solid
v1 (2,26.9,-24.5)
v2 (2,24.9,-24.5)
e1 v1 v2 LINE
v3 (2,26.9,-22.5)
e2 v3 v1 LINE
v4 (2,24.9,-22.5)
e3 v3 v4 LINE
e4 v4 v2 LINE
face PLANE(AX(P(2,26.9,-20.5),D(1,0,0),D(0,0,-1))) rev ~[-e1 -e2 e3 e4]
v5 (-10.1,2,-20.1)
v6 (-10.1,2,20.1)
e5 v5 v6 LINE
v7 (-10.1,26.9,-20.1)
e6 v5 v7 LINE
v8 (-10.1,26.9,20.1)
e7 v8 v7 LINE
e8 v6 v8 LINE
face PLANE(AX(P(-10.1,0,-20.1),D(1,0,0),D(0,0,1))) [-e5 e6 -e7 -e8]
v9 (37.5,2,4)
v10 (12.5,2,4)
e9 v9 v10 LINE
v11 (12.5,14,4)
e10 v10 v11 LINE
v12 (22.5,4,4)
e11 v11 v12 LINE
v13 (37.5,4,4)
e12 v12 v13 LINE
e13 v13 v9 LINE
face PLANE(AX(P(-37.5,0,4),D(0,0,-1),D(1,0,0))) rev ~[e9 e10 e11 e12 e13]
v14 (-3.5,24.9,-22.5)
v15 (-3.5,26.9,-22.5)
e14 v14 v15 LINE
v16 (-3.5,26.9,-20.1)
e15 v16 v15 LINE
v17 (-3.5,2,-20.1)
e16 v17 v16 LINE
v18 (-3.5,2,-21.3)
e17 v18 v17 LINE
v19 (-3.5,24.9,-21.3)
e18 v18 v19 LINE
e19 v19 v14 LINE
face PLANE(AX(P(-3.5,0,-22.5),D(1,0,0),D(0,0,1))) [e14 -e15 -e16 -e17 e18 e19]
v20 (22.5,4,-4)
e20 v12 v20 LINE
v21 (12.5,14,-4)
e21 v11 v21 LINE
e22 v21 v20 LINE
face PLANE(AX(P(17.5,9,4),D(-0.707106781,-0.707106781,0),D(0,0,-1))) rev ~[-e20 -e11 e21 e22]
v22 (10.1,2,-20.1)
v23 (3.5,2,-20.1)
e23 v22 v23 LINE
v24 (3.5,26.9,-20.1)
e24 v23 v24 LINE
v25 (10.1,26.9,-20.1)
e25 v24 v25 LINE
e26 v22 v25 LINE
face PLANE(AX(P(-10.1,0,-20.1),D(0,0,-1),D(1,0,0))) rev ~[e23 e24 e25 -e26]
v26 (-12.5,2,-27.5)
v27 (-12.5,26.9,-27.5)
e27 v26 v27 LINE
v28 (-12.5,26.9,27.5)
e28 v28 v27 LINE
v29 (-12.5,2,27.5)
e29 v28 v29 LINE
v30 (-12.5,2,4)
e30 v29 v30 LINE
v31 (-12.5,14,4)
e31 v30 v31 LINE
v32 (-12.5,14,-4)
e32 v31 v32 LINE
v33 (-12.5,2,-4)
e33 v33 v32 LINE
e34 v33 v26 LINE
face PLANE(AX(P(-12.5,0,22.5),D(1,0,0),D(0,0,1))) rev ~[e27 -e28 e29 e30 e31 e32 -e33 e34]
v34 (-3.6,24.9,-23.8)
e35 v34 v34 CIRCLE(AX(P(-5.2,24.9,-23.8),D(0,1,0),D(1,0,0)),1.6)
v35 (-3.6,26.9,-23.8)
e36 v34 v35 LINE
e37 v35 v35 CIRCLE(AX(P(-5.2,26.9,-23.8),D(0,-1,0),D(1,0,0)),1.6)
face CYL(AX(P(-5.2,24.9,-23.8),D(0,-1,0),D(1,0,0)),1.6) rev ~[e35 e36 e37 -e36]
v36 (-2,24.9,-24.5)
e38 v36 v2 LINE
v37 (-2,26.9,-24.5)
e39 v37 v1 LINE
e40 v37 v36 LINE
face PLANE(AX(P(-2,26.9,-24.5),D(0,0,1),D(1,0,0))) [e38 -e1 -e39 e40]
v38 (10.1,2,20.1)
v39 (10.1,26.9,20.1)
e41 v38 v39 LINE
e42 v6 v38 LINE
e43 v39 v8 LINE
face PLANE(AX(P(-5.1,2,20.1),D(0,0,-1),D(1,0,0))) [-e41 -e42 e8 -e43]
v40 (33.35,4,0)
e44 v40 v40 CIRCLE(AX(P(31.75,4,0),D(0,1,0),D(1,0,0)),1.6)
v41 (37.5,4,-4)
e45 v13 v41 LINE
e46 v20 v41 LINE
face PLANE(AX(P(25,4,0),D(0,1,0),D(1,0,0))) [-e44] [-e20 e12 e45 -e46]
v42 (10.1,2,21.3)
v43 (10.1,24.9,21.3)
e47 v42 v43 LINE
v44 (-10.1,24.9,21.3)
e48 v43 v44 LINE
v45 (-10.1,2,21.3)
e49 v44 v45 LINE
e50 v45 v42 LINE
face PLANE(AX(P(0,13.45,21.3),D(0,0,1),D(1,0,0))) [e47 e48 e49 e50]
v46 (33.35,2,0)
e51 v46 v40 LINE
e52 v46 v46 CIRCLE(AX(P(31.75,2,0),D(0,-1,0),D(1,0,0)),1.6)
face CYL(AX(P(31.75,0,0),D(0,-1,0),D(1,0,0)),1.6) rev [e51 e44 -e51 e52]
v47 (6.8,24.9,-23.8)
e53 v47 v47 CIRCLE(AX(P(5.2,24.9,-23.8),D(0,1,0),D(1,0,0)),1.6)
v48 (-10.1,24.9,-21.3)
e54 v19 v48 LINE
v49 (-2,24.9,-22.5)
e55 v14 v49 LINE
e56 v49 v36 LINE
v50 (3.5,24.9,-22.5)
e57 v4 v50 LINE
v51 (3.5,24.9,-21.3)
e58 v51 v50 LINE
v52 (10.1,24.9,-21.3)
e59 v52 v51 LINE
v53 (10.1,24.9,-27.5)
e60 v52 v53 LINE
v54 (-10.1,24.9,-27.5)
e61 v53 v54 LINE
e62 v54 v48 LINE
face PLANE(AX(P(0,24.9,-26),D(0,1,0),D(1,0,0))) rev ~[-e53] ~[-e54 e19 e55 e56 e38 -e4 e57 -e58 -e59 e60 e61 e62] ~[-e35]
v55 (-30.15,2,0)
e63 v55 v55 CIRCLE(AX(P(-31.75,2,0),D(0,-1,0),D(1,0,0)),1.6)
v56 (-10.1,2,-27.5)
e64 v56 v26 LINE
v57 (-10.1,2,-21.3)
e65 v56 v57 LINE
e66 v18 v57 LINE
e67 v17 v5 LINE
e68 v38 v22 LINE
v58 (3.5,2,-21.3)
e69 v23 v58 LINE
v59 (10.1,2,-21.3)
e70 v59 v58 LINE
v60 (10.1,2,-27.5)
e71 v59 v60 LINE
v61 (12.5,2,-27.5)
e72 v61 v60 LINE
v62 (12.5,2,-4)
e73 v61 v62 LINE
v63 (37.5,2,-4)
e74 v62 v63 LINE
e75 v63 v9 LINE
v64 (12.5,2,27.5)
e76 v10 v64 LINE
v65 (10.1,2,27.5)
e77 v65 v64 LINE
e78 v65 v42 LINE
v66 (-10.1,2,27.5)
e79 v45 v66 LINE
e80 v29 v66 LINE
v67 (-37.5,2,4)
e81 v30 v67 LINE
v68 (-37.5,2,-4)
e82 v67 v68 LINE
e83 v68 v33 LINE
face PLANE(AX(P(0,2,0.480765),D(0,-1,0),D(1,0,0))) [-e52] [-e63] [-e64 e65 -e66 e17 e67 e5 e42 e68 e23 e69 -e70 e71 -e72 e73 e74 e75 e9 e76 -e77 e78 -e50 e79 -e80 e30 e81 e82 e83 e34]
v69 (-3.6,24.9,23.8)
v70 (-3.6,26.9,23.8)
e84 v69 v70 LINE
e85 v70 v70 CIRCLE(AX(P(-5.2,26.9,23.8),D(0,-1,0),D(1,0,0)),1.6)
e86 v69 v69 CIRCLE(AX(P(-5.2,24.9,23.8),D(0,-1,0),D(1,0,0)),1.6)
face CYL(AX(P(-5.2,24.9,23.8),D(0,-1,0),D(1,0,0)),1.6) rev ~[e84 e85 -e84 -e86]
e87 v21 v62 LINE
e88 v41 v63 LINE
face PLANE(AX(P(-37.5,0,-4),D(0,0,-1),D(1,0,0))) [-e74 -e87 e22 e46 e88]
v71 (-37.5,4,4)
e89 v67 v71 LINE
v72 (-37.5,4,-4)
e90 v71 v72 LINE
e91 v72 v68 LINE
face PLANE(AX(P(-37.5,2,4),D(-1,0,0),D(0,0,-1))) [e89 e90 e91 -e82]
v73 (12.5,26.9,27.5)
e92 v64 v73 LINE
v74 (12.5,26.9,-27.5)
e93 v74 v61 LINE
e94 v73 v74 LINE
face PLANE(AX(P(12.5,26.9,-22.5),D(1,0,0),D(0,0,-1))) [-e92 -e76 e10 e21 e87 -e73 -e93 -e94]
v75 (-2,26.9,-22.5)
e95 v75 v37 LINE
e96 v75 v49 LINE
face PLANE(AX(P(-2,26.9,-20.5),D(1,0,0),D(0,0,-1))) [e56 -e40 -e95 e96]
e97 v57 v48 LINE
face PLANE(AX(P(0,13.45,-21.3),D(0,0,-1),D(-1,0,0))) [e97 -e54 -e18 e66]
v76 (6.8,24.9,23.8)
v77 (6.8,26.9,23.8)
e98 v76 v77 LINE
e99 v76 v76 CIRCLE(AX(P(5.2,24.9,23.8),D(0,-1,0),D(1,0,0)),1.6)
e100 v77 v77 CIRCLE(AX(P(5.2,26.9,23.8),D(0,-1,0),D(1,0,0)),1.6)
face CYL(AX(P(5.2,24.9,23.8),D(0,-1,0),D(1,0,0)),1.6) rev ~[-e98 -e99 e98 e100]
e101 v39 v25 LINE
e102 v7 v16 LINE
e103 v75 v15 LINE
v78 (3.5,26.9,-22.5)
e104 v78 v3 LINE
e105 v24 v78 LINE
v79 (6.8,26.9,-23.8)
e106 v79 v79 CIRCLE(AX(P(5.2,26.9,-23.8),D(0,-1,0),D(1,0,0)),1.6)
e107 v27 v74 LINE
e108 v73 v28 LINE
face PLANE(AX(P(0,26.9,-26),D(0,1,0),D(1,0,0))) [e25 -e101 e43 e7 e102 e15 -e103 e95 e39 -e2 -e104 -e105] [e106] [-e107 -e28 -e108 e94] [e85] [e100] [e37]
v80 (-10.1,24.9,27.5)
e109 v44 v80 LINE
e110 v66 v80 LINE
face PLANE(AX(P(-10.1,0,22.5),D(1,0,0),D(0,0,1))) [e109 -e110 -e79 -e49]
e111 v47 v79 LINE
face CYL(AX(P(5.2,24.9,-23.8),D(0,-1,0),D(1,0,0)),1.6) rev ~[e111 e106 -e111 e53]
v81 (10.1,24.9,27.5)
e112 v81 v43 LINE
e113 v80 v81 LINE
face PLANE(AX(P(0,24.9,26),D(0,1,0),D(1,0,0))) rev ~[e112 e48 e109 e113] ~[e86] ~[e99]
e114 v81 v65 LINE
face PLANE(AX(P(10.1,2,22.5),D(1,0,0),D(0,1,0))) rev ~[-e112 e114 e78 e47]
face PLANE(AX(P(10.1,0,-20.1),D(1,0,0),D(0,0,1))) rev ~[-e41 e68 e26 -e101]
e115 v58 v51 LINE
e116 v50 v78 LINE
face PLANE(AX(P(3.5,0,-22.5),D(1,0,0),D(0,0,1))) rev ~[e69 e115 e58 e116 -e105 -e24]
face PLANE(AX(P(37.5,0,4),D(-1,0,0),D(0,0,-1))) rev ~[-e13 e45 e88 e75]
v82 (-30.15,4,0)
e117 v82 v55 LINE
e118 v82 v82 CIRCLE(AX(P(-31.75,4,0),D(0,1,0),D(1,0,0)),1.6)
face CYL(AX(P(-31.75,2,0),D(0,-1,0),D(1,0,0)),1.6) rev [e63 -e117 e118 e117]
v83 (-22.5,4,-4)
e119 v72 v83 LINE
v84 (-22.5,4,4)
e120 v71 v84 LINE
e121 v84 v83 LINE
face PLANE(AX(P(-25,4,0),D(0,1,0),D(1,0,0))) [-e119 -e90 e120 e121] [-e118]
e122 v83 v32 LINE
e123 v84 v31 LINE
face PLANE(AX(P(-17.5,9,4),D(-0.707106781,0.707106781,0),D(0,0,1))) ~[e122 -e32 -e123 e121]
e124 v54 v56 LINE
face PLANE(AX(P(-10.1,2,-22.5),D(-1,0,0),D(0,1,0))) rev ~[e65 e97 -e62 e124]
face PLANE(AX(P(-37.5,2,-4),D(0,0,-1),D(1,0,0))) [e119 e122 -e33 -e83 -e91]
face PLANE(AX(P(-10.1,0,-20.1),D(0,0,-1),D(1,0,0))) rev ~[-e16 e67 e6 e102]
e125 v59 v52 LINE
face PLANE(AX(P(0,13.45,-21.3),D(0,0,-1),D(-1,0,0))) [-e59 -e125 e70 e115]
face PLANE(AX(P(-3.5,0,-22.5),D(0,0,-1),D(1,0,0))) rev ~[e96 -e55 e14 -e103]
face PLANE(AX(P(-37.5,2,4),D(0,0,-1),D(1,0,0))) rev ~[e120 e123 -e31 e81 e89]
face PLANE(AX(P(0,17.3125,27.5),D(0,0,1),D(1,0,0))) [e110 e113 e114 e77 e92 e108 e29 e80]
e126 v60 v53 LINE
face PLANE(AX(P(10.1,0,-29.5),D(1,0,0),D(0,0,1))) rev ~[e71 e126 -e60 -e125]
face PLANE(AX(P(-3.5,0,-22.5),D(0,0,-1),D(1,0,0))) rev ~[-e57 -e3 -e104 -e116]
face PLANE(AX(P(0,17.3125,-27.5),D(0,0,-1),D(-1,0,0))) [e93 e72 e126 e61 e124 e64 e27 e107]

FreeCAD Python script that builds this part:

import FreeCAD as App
import Part
import Sketcher

V = App.Vector


def edges_at(feature, points):
    """Names of the edges that pass closest to the given points."""
    edges = feature.Shape.Edges
    near = lambda p: min(range(len(edges)), key=lambda i: edges[i].distToShape(Part.Vertex(*p))[0])
    return sorted({f"Edge{near(p) + 1}" for p in points})

doc = App.newDocument("Part")
body = doc.addObject("PartDesign::Body", "Body")

sketch1 = body.newObject("Sketcher::SketchObject", "Sketch")
sketch1.AttachmentSupport = (doc.getObject("XZ_Plane"), [""])
sketch1.MapMode = "FlatFace"
sketch1.addGeometry([
    Part.LineSegment(V(-37.5, -4, 0), V(-37.5, 4, 0)),
    Part.LineSegment(V(-37.5, 4, 0), V(37.5, 4, 0)),
    Part.LineSegment(V(37.5, 4, 0), V(37.5, -4, 0)),
    Part.LineSegment(V(37.5, -4, 0), V(-37.5, -4, 0)),
    Part.Circle(V(-31.8, 0, 0), V(0, 0, 1), 1.6),
    Part.Circle(V(31.8, 0, 0), V(0, 0, 1), 1.6),
], False)
sketch1.addConstraint([
    Sketcher.Constraint("Coincident", 0, 2, 1, 1),
    Sketcher.Constraint("Coincident", 1, 2, 2, 1),
    Sketcher.Constraint("Coincident", 2, 2, 3, 1),
    Sketcher.Constraint("Coincident", 3, 2, 0, 1),
    Sketcher.Constraint("Vertical", 0),
    Sketcher.Constraint("Horizontal", 1),
    Sketcher.Constraint("Vertical", 2),
    Sketcher.Constraint("Horizontal", 3),
    Sketcher.Constraint("Equal", 4, 5),
    Sketcher.Constraint("Symmetric", 4, 3, 5, 3, -1, 1),
    Sketcher.Constraint("Symmetric", 0, 2, 2, 2, -1, 1),
    Sketcher.Constraint("PointOnObject", 4, 3, -1),
    Sketcher.Constraint("Diameter", 4, 3.2),
    Sketcher.Constraint("DistanceX", 1, 1, 1, 2, 75.0),
    Sketcher.Constraint("DistanceY", 0, 1, 0, 2, 8.0),
    Sketcher.Constraint("DistanceX", 4, 3, 5, 3, 63.5),
])
pad1 = body.newObject("PartDesign::Pad", "Pad")
pad1.Profile = sketch1
pad1.Length = 2
pad1.Reversed = True

sketch2 = body.newObject("Sketcher::SketchObject", "Sketch001")
sketch2.AttachmentSupport = (doc.getObject("XZ_Plane"), [""])
sketch2.MapMode = "FlatFace"
sketch2.AttachmentOffset = App.Placement(V(0, 0, -2), App.Rotation())
sketch2.addGeometry([
    Part.LineSegment(V(-12, 4, 0), V(-12, 22, 0)),
    Part.LineSegment(V(-12, 22, 0), V(12, 22, 0)),
    Part.LineSegment(V(12, 22, 0), V(12, 4, 0)),
    Part.LineSegment(V(12, 4, 0), V(-12, 4, 0)),
], False)
sketch2.addConstraint([
    Sketcher.Constraint("Coincident", 0, 2, 1, 1),
    Sketcher.Constraint("Coincident", 1, 2, 2, 1),
    Sketcher.Constraint("Coincident", 2, 2, 3, 1),
    Sketcher.Constraint("Coincident", 3, 2, 0, 1),
    Sketcher.Constraint("Vertical", 0),
    Sketcher.Constraint("Horizontal", 1),
    Sketcher.Constraint("Vertical", 2),
    Sketcher.Constraint("Horizontal", 3),
    Sketcher.Constraint("DistanceX", 1, 1, 1, 2, 25.0),
    Sketcher.Constraint("DistanceY", 0, 1, 0, 2, 18.5),
    Sketcher.Constraint("DistanceY", -1, 1, 2, 2, 4.0),
    Sketcher.Constraint("DistanceX", 0, 2, -1, 1, 12.5),
])
pad2 = body.newObject("PartDesign::Pad", "Pad001")
pad2.Profile = sketch2
pad2.Length = 2

sketch3 = body.newObject("Sketcher::SketchObject", "Sketch002")
sketch3.AttachmentSupport = (doc.getObject("XY_Plane"), [""])
sketch3.MapMode = "FlatFace"
sketch3.AttachmentOffset = App.Placement(V(0, 0, -4), App.Rotation())
sketch3.addGeometry([
    Part.LineSegment(V(12.5, 2, 0), V(12.5, 0, 0)),
    Part.LineSegment(V(12.5, 0, 0), V(-12.5, 0, 0)),
    Part.LineSegment(V(-12.5, 0, 0), V(-12.5, 2, 0)),
    Part.LineSegment(V(-12.5, 2, 0), V(12.5, 2, 0)),
], False)
sketch3.addConstraint([
    Sketcher.Constraint("Coincident", 0, 2, 1, 1),
    Sketcher.Constraint("Coincident", 1, 2, 2, 1),
    Sketcher.Constraint("Coincident", 2, 2, 3, 1),
    Sketcher.Constraint("Coincident", 3, 2, 0, 1),
    Sketcher.Constraint("Vertical", 0),
    Sketcher.Constraint("Horizontal", 1),
    Sketcher.Constraint("Vertical", 2),
    Sketcher.Constraint("Horizontal", 3),
    Sketcher.Constraint("Symmetric", 0, 2, 1, 2, -1, 1),
    Sketcher.Constraint("DistanceX", 1, 2, 1, 1, 25.0),
    Sketcher.Constraint("DistanceY", 0, 2, 0, 1, 2.0),
])
pad3 = body.newObject("PartDesign::Pad", "Pad002")
pad3.Profile = sketch3
pad3.Length = 18.5
pad3.Reversed = True

sketch4 = body.newObject("Sketcher::SketchObject", "Sketch003")
sketch4.AttachmentSupport = (doc.getObject("XZ_Plane"), [""])
sketch4.MapMode = "FlatFace"
sketch4.AttachmentOffset = App.Placement(V(0, 0, -2), App.Rotation())
sketch4.addGeometry([
    Part.LineSegment(V(-5, -20, 0), V(-5, 20, 0)),
    Part.LineSegment(V(-5, 20, 0), V(5, 20, 0)),
    Part.LineSegment(V(5, 20, 0), V(5, -20, 0)),
    Part.LineSegment(V(5, -20, 0), V(-5, -20, 0)),
], False)
sketch4.addConstraint([
    Sketcher.Constraint("Coincident", 0, 2, 1, 1),
    Sketcher.Constraint("Coincident", 1, 2, 2, 1),
    Sketcher.Constraint("Coincident", 2, 2, 3, 1),
    Sketcher.Constraint("Coincident", 3, 2, 0, 1),
    Sketcher.Constraint("Vertical", 0),
    Sketcher.Constraint("Horizontal", 1),
    Sketcher.Constraint("Vertical", 2),
    Sketcher.Constraint("Horizontal", 3),
    Sketcher.Constraint("Symmetric", 0, 2, 2, 2, -1, 1),
    Sketcher.Constraint("DistanceX", 1, 1, 1, 2, 10.2),
    Sketcher.Constraint("DistanceY", 0, 1, 0, 2, 40.2),
])
pocket1 = body.newObject("PartDesign::Pocket", "Pocket")
pocket1.Profile = sketch4
pocket1.Length = 18.5
pocket1.Reversed = True

sketch5 = body.newObject("Sketcher::SketchObject", "Sketch004")
sketch5.AttachmentSupport = (doc.getObject("XZ_Plane"), [""])
sketch5.MapMode = "FlatFace"
sketch5.AttachmentOffset = App.Placement(V(0, 0, -2), App.Rotation())
sketch5.addGeometry([
    Part.LineSegment(V(-12, 22, 0), V(12, 22, 0)),
    Part.LineSegment(V(12, 22, 0), V(12, -22, 0)),
    Part.LineSegment(V(12, -22, 0), V(-12, -22, 0)),
    Part.LineSegment(V(-12, -22, 0), V(-12, 22, 0)),
    Part.LineSegment(V(5, 20, 0), V(-5, 20, 0)),
    Part.LineSegment(V(-5, 20, 0), V(-5, -20, 0)),
    Part.LineSegment(V(-5, -20, 0), V(5, -20, 0)),
    Part.LineSegment(V(5, -20, 0), V(5, 20, 0)),
], False)
sketch5.addConstraint([
    Sketcher.Constraint("Coincident", 0, 2, 1, 1),
    Sketcher.Constraint("Coincident", 1, 2, 2, 1),
    Sketcher.Constraint("Coincident", 2, 2, 3, 1),
    Sketcher.Constraint("Coincident", 3, 2, 0, 1),
    Sketcher.Constraint("Coincident", 4, 2, 5, 1),
    Sketcher.Constraint("Coincident", 5, 2, 6, 1),
    Sketcher.Constraint("Coincident", 6, 2, 7, 1),
    Sketcher.Constraint("Coincident", 7, 2, 4, 1),
    Sketcher.Constraint("Horizontal", 0),
    Sketcher.Constraint("Vertical", 1),
    Sketcher.Constraint("Horizontal", 2),
    Sketcher.Constraint("Vertical", 3),
    Sketcher.Constraint("Horizontal", 4),
    Sketcher.Constraint("Vertical", 5),
    Sketcher.Constraint("Horizontal", 6),
    Sketcher.Constraint("Vertical", 7),
    Sketcher.Constraint("Symmetric", 0, 2, 2, 2, -1, 1),
    Sketcher.Constraint("Symmetric", 4, 2, 6, 2, -1, 1),
    Sketcher.Constraint("DistanceX", 0, 1, 0, 2, 25.0),
    Sketcher.Constraint("DistanceY", 1, 2, 1, 1, 45.0),
    Sketcher.Constraint("DistanceX", 4, 2, 4, 1, 10.2),
    Sketcher.Constraint("DistanceY", 5, 2, 5, 1, 40.2),
])
pad4 = body.newObject("PartDesign::Pad", "Pad003")
pad4.Profile = sketch5
pad4.Length = 24.9
pad4.Reversed = True

sketch6 = body.newObject("Sketcher::SketchObject", "Sketch005")
sketch6.AttachmentSupport = (doc.getObject("XZ_Plane"), [""])
sketch6.MapMode = "FlatFace"
sketch6.AttachmentOffset = App.Placement(V(0, 0, -26.9), App.Rotation())
sketch6.addGeometry([
    Part.LineSegment(V(-12, -30, 0), V(-12, -22, 0)),
    Part.LineSegment(V(-12, -22, 0), V(12, -22, 0)),
    Part.LineSegment(V(12, -22, 0), V(12, -30, 0)),
    Part.LineSegment(V(12, -30, 0), V(-12, -30, 0)),
    Part.LineSegment(V(-12, 22, 0), V(-12, 30, 0)),
    Part.LineSegment(V(-12, 30, 0), V(12, 30, 0)),
    Part.LineSegment(V(12, 30, 0), V(12, 22, 0)),
    Part.LineSegment(V(12, 22, 0), V(-12, 22, 0)),
], False)
sketch6.addConstraint([
    Sketcher.Constraint("Coincident", 0, 2, 1, 1),
    Sketcher.Constraint("Coincident", 1, 2, 2, 1),
    Sketcher.Constraint("Coincident", 2, 2, 3, 1),
    Sketcher.Constraint("Coincident", 3, 2, 0, 1),
    Sketcher.Constraint("Coincident", 4, 2, 5, 1),
    Sketcher.Constraint("Coincident", 5, 2, 6, 1),
    Sketcher.Constraint("Coincident", 6, 2, 7, 1),
    Sketcher.Constraint("Coincident", 7, 2, 4, 1),
    Sketcher.Constraint("Vertical", 0),
    Sketcher.Constraint("Horizontal", 1),
    Sketcher.Constraint("Vertical", 2),
    Sketcher.Constraint("Horizontal", 3),
    Sketcher.Constraint("Vertical", 4),
    Sketcher.Constraint("Horizontal", 5),
    Sketcher.Constraint("Vertical", 6),
    Sketcher.Constraint("Horizontal", 7),
    Sketcher.Constraint("Symmetric", 2, 2, 4, 2, -1, 1),
    Sketcher.Constraint("Symmetric", 0, 2, 6, 2, -1, 1),
    Sketcher.Constraint("Vertical", 3, 2, 4, 2),
    Sketcher.Constraint("DistanceX", 1, 1, 1, 2, 25.0),
    Sketcher.Constraint("DistanceY", 0, 1, 0, 2, 7.0),
    Sketcher.Constraint("DistanceY", 0, 2, 4, 2, 52.0),
])
pad5 = body.newObject("PartDesign::Pad", "Pad004")
pad5.Profile = sketch6
pad5.Length = 2

sketch7 = body.newObject("Sketcher::SketchObject", "Sketch006")
sketch7.AttachmentSupport = (doc.getObject("XZ_Plane"), [""])
sketch7.MapMode = "FlatFace"
sketch7.AttachmentOffset = App.Placement(V(0, 0, -24.9), App.Rotation())
sketch7.addGeometry([
    Part.Circle(V(5.2, 23.8, 0), V(0, 0, 1), 1.6),
    Part.Circle(V(-5.2, 23.8, 0), V(0, 0, 1), 1.6),
    Part.Circle(V(-5.2, -23.8, 0), V(0, 0, 1), 1.6),
    Part.Circle(V(5.2, -23.8, 0), V(0, 0, 1), 1.6),
], False)
sketch7.addConstraint([
    Sketcher.Constraint("Equal", 0, 1),
    Sketcher.Constraint("Equal", 1, 2),
    Sketcher.Constraint("Equal", 2, 3),
    Sketcher.Constraint("Symmetric", 0, 3, 2, 3, -1, 1),
    Sketcher.Constraint("Symmetric", 1, 3, 3, 3, -1, 1),
    Sketcher.Constraint("Symmetric", 0, 3, 1, 3, -2),
    Sketcher.Constraint("Diameter", 0, 3.2),
    Sketcher.Constraint("DistanceX", -1, 1, 0, 3, 5.2),
    Sketcher.Constraint("DistanceY", -1, 1, 0, 3, 23.8),
])
pocket2 = body.newObject("PartDesign::Pocket", "Pocket001")
pocket2.Profile = sketch7
pocket2.Length = 2

sketch8 = body.newObject("Sketcher::SketchObject", "Sketch007")
sketch8.AttachmentSupport = (doc.getObject("XZ_Plane"), [""])
sketch8.MapMode = "FlatFace"
sketch8.addGeometry([
    Part.LineSegment(V(-10, 20, 0), V(-10, -20, 0)),
    Part.LineSegment(V(-10, -20, 0), V(10, -20, 0)),
    Part.LineSegment(V(10, -20, 0), V(10, 20, 0)),
    Part.LineSegment(V(10, 20, 0), V(-10, 20, 0)),
], False)
sketch8.addConstraint([
    Sketcher.Constraint("Coincident", 0, 2, 1, 1),
    Sketcher.Constraint("Coincident", 1, 2, 2, 1),
    Sketcher.Constraint("Coincident", 2, 2, 3, 1),
    Sketcher.Constraint("Coincident", 3, 2, 0, 1),
    Sketcher.Constraint("Vertical", 0),
    Sketcher.Constraint("Horizontal", 1),
    Sketcher.Constraint("Vertical", 2),
    Sketcher.Constraint("Horizontal", 3),
    Sketcher.Constraint("Symmetric", 0, 2, 2, 2, -1, 1),
    Sketcher.Constraint("DistanceX", 1, 1, 1, 2, 20.2),
    Sketcher.Constraint("DistanceY", 0, 2, 0, 1, 40.2),
])
pocket3 = body.newObject("PartDesign::Pocket", "Pocket002")
pocket3.Profile = sketch8
pocket3.Length = 77

sketch9 = body.newObject("Sketcher::SketchObject", "Sketch008")
sketch9.AttachmentSupport = (doc.getObject("XZ_Plane"), [""])
sketch9.MapMode = "FlatFace"
sketch9.addGeometry([
    Part.LineSegment(V(-3.5, -20.1, 0), V(-3.5, -22.5, 0)),
    Part.LineSegment(V(-3.5, -22.5, 0), V(3.5, -22.5, 0)),
    Part.LineSegment(V(3.5, -22.5, 0), V(3.5, -20.1, 0)),
    Part.LineSegment(V(3.5, -20.1, 0), V(-3.5, -20.1, 0)),
], False)
sketch9.addConstraint([
    Sketcher.Constraint("Coincident", 0, 2, 1, 1),
    Sketcher.Constraint("Coincident", 1, 2, 2, 1),
    Sketcher.Constraint("Coincident", 2, 2, 3, 1),
    Sketcher.Constraint("Coincident", 3, 2, 0, 1),
    Sketcher.Constraint("Vertical", 0),
    Sketcher.Constraint("Horizontal", 1),
    Sketcher.Constraint("Vertical", 2),
    Sketcher.Constraint("Horizontal", 3),
    Sketcher.Constraint("DistanceX", 1, 1, 1, 2, 7.0),
    Sketcher.Constraint("DistanceY", 0, 2, 0, 1, 2.4),
    Sketcher.Constraint("DistanceX", 0, 2, -1, 1, 3.5),
    Sketcher.Constraint("DistanceY", 0, 2, -1, 1, 22.5),
])
pocket4 = body.newObject("PartDesign::Pocket", "Pocket003")
pocket4.Profile = sketch9
pocket4.Length = 77

sketch10 = body.newObject("Sketcher::SketchObject", "Sketch009")
sketch10.AttachmentSupport = (doc.getObject("XZ_Plane"), [""])
sketch10.MapMode = "FlatFace"
sketch10.addGeometry([
    Part.LineSegment(V(-12.5, 29.5, 0), V(-12.5, 22.5, 0)),
    Part.LineSegment(V(-12.5, 22.5, 0), V(-10.1, 22.5, 0)),
    Part.LineSegment(V(-10.1, 22.5, 0), V(-10.1, 29.5, 0)),
    Part.LineSegment(V(-10.1, 29.5, 0), V(-12.5, 29.5, 0)),
    Part.LineSegment(V(-12.5, -22.5, 0), V(-12.5, -29.5, 0)),
    Part.LineSegment(V(-12.5, -29.5, 0), V(-10.1, -29.5, 0)),
    Part.LineSegment(V(-10.1, -29.5, 0), V(-10.1, -22.5, 0)),
    Part.LineSegment(V(-10.1, -22.5, 0), V(-12.5, -22.5, 0)),
    Part.LineSegment(V(10.1, 29.5, 0), V(10.1, 22.5, 0)),
    Part.LineSegment(V(10.1, 22.5, 0), V(12.5, 22.5, 0)),
    Part.LineSegment(V(12.5, 22.5, 0), V(12.5, 29.5, 0)),
    Part.LineSegment(V(12.5, 29.5, 0), V(10.1, 29.5, 0)),
    Part.LineSegment(V(10.1, -22.5, 0), V(10.1, -29.5, 0)),
    Part.LineSegment(V(10.1, -29.5, 0), V(12.5, -29.5, 0)),
    Part.LineSegment(V(12.5, -29.5, 0), V(12.5, -22.5, 0)),
    Part.LineSegment(V(12.5, -22.5, 0), V(10.1, -22.5, 0)),
], False)
sketch10.addConstraint([
    Sketcher.Constraint("Coincident", 0, 2, 1, 1),
    Sketcher.Constraint("Coincident", 1, 2, 2, 1),
    Sketcher.Constraint("Coincident", 2, 2, 3, 1),
    Sketcher.Constraint("Coincident", 3, 2, 0, 1),
    Sketcher.Constraint("Coincident", 4, 2, 5, 1),
    Sketcher.Constraint("Coincident", 5, 2, 6, 1),
    Sketcher.Constraint("Coincident", 6, 2, 7, 1),
    Sketcher.Constraint("Coincident", 7, 2, 4, 1),
    Sketcher.Constraint("Coincident", 8, 2, 9, 1),
    Sketcher.Constraint("Coincident", 9, 2, 10, 1),
    Sketcher.Constraint("Coincident", 10, 2, 11, 1),
    Sketcher.Constraint("Coincident", 11, 2, 8, 1),
    Sketcher.Constraint("Coincident", 12, 2, 13, 1),
    Sketcher.Constraint("Coincident", 13, 2, 14, 1),
    Sketcher.Constraint("Coincident", 14, 2, 15, 1),
    Sketcher.Constraint("Coincident", 15, 2, 12, 1),
    Sketcher.Constraint("Vertical", 0),
    Sketcher.Constraint("Horizontal", 1),
    Sketcher.Constraint("Vertical", 2),
    Sketcher.Constraint("Horizontal", 3),
    Sketcher.Constraint("Vertical", 4),
    Sketcher.Constraint("Horizontal", 5),
    Sketcher.Constraint("Vertical", 6),
    Sketcher.Constraint("Horizontal", 7),
    Sketcher.Constraint("Vertical", 8),
    Sketcher.Constraint("Horizontal", 9),
    Sketcher.Constraint("Vertical", 10),
    Sketcher.Constraint("Horizontal", 11),
    Sketcher.Constraint("Vertical", 12),
    Sketcher.Constraint("Horizontal", 13),
    Sketcher.Constraint("Vertical", 14),
    Sketcher.Constraint("Horizontal", 15),
    Sketcher.Constraint("Symmetric", 6, 2, 8, 2, -1, 1),
    Sketcher.Constraint("Symmetric", 4, 2, 10, 2, -1, 1),
    Sketcher.Constraint("Symmetric", 2, 2, 12, 2, -1, 1),
    Sketcher.Constraint("Symmetric", 0, 2, 14, 2, -1, 1),
    Sketcher.Constraint("Symmetric", 1, 2, 8, 2, -2),
    Sketcher.Constraint("Symmetric", 3, 2, 10, 2, -2),
    Sketcher.Constraint("DistanceY", 0, 2, 0, 1, 7.0),
    Sketcher.Constraint("DistanceX", 1, 1, 1, 2, 2.4),
    Sketcher.Constraint("DistanceY", 4, 2, 0, 2, 52.0),
    Sketcher.Constraint("DistanceX", 0, 2, 9, 2, 25.0),
])
pad6 = body.newObject("PartDesign::Pad", "Pad005")
pad6.Profile = sketch10
pad6.Length = 24.9
pad6.Reversed = True

sketch11 = body.newObject("Sketcher::SketchObject", "Sketch010")
sketch11.AttachmentSupport = (doc.getObject("XZ_Plane"), [""])
sketch11.MapMode = "FlatFace"
sketch11.AttachmentOffset = App.Placement(V(0, 0, -26.9), App.Rotation())
sketch11.addGeometry([
    Part.LineSegment(V(-2, -24.5, 0), V(-2, -20.5, 0)),
    Part.LineSegment(V(-2, -20.5, 0), V(2, -20.5, 0)),
    Part.LineSegment(V(2, -20.5, 0), V(2, -24.5, 0)),
    Part.LineSegment(V(2, -24.5, 0), V(-2, -24.5, 0)),
], False)
sketch11.addConstraint([
    Sketcher.Constraint("Coincident", 0, 2, 1, 1),
    Sketcher.Constraint("Coincident", 1, 2, 2, 1),
    Sketcher.Constraint("Coincident", 2, 2, 3, 1),
    Sketcher.Constraint("Coincident", 3, 2, 0, 1),
    Sketcher.Constraint("Vertical", 0),
    Sketcher.Constraint("Horizontal", 1),
    Sketcher.Constraint("Vertical", 2),
    Sketcher.Constraint("Horizontal", 3),
    Sketcher.Constraint("Equal", 3, 0),
    Sketcher.Constraint("DistanceX", 1, 1, 1, 2, 4.0),
    Sketcher.Constraint("DistanceX", 0, 2, -1, 1, 2.0),
    Sketcher.Constraint("DistanceY", 0, 2, -1, 1, 20.5),
])
pocket5 = body.newObject("PartDesign::Pocket", "Pocket004")
pocket5.Profile = sketch11
pocket5.Length = 77
pocket5.Reversed = True

sketch12 = body.newObject("Sketcher::SketchObject", "Sketch011")
sketch12.AttachmentSupport = (doc.getObject("XZ_Plane"), [""])
sketch12.MapMode = "FlatFace"
sketch12.AttachmentOffset = App.Placement(V(0, 0, -2), App.Rotation())
sketch12.addGeometry([
    Part.LineSegment(V(-37.5, -4, 0), V(-37.5, 4, 0)),
    Part.LineSegment(V(-37.5, 4, 0), V(-12.5, 4, 0)),
    Part.LineSegment(V(-12.5, 4, 0), V(-12.5, -4, 0)),
    Part.LineSegment(V(-12.5, -4, 0), V(-37.5, -4, 0)),
    Part.Circle(V(-31.8, 0, 0), V(0, 0, 1), 1.6),
    Part.LineSegment(V(12.5, -4, 0), V(12.5, 4, 0)),
    Part.LineSegment(V(12.5, 4, 0), V(37.5, 4, 0)),
    Part.LineSegment(V(37.5, 4, 0), V(37.5, -4, 0)),
    Part.LineSegment(V(37.5, -4, 0), V(12.5, -4, 0)),
    Part.Circle(V(31.8, 0, 0), V(0, 0, 1), 1.6),
], False)
sketch12.addConstraint([
    Sketcher.Constraint("Coincident", 0, 2, 1, 1),
    Sketcher.Constraint("Coincident", 1, 2, 2, 1),
    Sketcher.Constraint("Coincident", 2, 2, 3, 1),
    Sketcher.Constraint("Coincident", 3, 2, 0, 1),
    Sketcher.Constraint("Coincident", 5, 2, 6, 1),
    Sketcher.Constraint("Coincident", 6, 2, 7, 1),
    Sketcher.Constraint("Coincident", 7, 2, 8, 1),
    Sketcher.Constraint("Coincident", 8, 2, 5, 1),
    Sketcher.Constraint("Vertical", 0),
    Sketcher.Constraint("Horizontal", 1),
    Sketcher.Constraint("Vertical", 2),
    Sketcher.Constraint("Horizontal", 3),
    Sketcher.Constraint("Vertical", 5),
    Sketcher.Constraint("Horizontal", 6),
    Sketcher.Constraint("Vertical", 7),
    Sketcher.Constraint("Horizontal", 8),
    Sketcher.Constraint("Equal", 4, 9),
    Sketcher.Constraint("Symmetric", 4, 3, 9, 3, -1, 1),
    Sketcher.Constraint("Symmetric", 2, 2, 5, 2, -1, 1),
    Sketcher.Constraint("Symmetric", 0, 2, 7, 2, -1, 1),
    Sketcher.Constraint("PointOnObject", 4, 3, -1),
    Sketcher.Constraint("Horizontal", 1, 2, 5, 2),
    Sketcher.Constraint("Diameter", 4, 3.2),
    Sketcher.Constraint("DistanceX", 1, 1, 1, 2, 25.0),
    Sketcher.Constraint("DistanceY", 0, 1, 0, 2, 8.0),
    Sketcher.Constraint("DistanceX", 1, 2, 5, 2, 25.0),
    Sketcher.Constraint("DistanceX", 4, 3, 9, 3, 63.5),
])
pad7 = body.newObject("PartDesign::Pad", "Pad006")
pad7.Profile = sketch12
pad7.Length = 2
pad7.Reversed = True

sketch13 = body.newObject("Sketcher::SketchObject", "Sketch012")
sketch13.AttachmentSupport = (doc.getObject("XZ_Plane"), [""])
sketch13.MapMode = "FlatFace"
sketch13.addGeometry([
    Part.LineSegment(V(10.1, -20.1, 0), V(3.5, -20.1, 0)),
    Part.LineSegment(V(3.5, -20.1, 0), V(3.5, -22.5, 0)),
    Part.LineSegment(V(3.5, -22.5, 0), V(10.1, -22.5, 0)),
    Part.LineSegment(V(10.1, -22.5, 0), V(10.1, -29.5, 0)),
    Part.LineSegment(V(10.1, -29.5, 0), V(12.5, -29.5, 0)),
    Part.LineSegment(V(12.5, -29.5, 0), V(12.5, -4, 0)),
    Part.LineSegment(V(12.5, -4, 0), V(37.5, -4, 0)),
    Part.LineSegment(V(37.5, -4, 0), V(37.5, 4, 0)),
    Part.LineSegment(V(37.5, 4, 0), V(12.5, 4, 0)),
    Part.LineSegment(V(12.5, 4, 0), V(12.5, 29.5, 0)),
    Part.LineSegment(V(12.5, 29.5, 0), V(10.1, 29.5, 0)),
    Part.LineSegment(V(10.1, 29.5, 0), V(10.1, 22.5, 0)),
    Part.LineSegment(V(10.1, 22.5, 0), V(-10.1, 22.5, 0)),
    Part.LineSegment(V(-10.1, 22.5, 0), V(-10.1, 29.5, 0)),
    Part.LineSegment(V(-10.1, 29.5, 0), V(-12.5, 29.5, 0)),
    Part.LineSegment(V(-12.5, 29.5, 0), V(-12.5, 4, 0)),
    Part.LineSegment(V(-12.5, 4, 0), V(-37.5, 4, 0)),
    Part.LineSegment(V(-37.5, 4, 0), V(-37.5, -4, 0)),
    Part.LineSegment(V(-37.5, -4, 0), V(-12.5, -4, 0)),
    Part.LineSegment(V(-12.5, -4, 0), V(-12.5, -29.5, 0)),
    Part.LineSegment(V(-12.5, -29.5, 0), V(-10.1, -29.5, 0)),
    Part.LineSegment(V(-10.1, -29.5, 0), V(-10.1, -22.5, 0)),
    Part.LineSegment(V(-10.1, -22.5, 0), V(-3.5, -22.5, 0)),
    Part.LineSegment(V(-3.5, -22.5, 0), V(-3.5, -20.1, 0)),
    Part.LineSegment(V(-3.5, -20.1, 0), V(-10.1, -20.1, 0)),
    Part.LineSegment(V(-10.1, -20.1, 0), V(-10.1, 20.1, 0)),
    Part.LineSegment(V(-10.1, 20.1, 0), V(10.1, 20.1, 0)),
    Part.LineSegment(V(10.1, 20.1, 0), V(10.1, -20.1, 0)),
], False)
sketch13.addConstraint([
    Sketcher.Constraint("Coincident", 0, 2, 1, 1),
    Sketcher.Constraint("Coincident", 1, 2, 2, 1),
    Sketcher.Constraint("Coincident", 2, 2, 3, 1),
    Sketcher.Constraint("Coincident", 3, 2, 4, 1),
    Sketcher.Constraint("Coincident", 4, 2, 5, 1),
    Sketcher.Constraint("Coincident", 5, 2, 6, 1),
    Sketcher.Constraint("Coincident", 6, 2, 7, 1),
    Sketcher.Constraint("Coincident", 7, 2, 8, 1),
    Sketcher.Constraint("Coincident", 8, 2, 9, 1),
    Sketcher.Constraint("Coincident", 9, 2, 10, 1),
    Sketcher.Constraint("Coincident", 10, 2, 11, 1),
    Sketcher.Constraint("Coincident", 11, 2, 12, 1),
    Sketcher.Constraint("Coincident", 12, 2, 13, 1),
    Sketcher.Constraint("Coincident", 13, 2, 14, 1),
    Sketcher.Constraint("Coincident", 14, 2, 15, 1),
    Sketcher.Constraint("Coincident", 15, 2, 16, 1),
    Sketcher.Constraint("Coincident", 16, 2, 17, 1),
    Sketcher.Constraint("Coincident", 17, 2, 18, 1),
    Sketcher.Constraint("Coincident", 18, 2, 19, 1),
    Sketcher.Constraint("Coincident", 19, 2, 20, 1),
    Sketcher.Constraint("Coincident", 20, 2, 21, 1),
    Sketcher.Constraint("Coincident", 21, 2, 22, 1),
    Sketcher.Constraint("Coincident", 22, 2, 23, 1),
    Sketcher.Constraint("Coincident", 23, 2, 24, 1),
    Sketcher.Constraint("Coincident", 24, 2, 25, 1),
    Sketcher.Constraint("Coincident", 25, 2, 26, 1),
    Sketcher.Constraint("Coincident", 26, 2, 27, 1),
    Sketcher.Constraint("Coincident", 27, 2, 0, 1),
    Sketcher.Constraint("Horizontal", 0),
    Sketcher.Constraint("Vertical", 1),
    Sketcher.Constraint("Horizontal", 2),
    Sketcher.Constraint("Vertical", 3),
    Sketcher.Constraint("Horizontal", 4),
    Sketcher.Constraint("Vertical", 5),
    Sketcher.Constraint("Horizontal", 6),
    Sketcher.Constraint("Vertical", 7),
    Sketcher.Constraint("Horizontal", 8),
    Sketcher.Constraint("Vertical", 9),
    Sketcher.Constraint("Horizontal", 10),
    Sketcher.Constraint("Vertical", 11),
    Sketcher.Constraint("Horizontal", 12),
    Sketcher.Constraint("Vertical", 13),
    Sketcher.Constraint("Horizontal", 14),
    Sketcher.Constraint("Vertical", 15),
    Sketcher.Constraint("Horizontal", 16),
    Sketcher.Constraint("Vertical", 17),
    Sketcher.Constraint("Horizontal", 18),
    Sketcher.Constraint("Vertical", 19),
    Sketcher.Constraint("Horizontal", 20),
    Sketcher.Constraint("Vertical", 21),
    Sketcher.Constraint("Horizontal", 22),
    Sketcher.Constraint("Vertical", 23),
    Sketcher.Constraint("Horizontal", 24),
    Sketcher.Constraint("Vertical", 25),
    Sketcher.Constraint("Horizontal", 26),
    Sketcher.Constraint("Vertical", 27),
    Sketcher.Constraint("Symmetric", 2, 2, 12, 2, -1, 1),
    Sketcher.Constraint("Symmetric", 4, 2, 14, 2, -1, 1),
    Sketcher.Constraint("Symmetric", 6, 2, 16, 2, -1, 1),
    Sketcher.Constraint("Symmetric", 8, 2, 18, 2, -1, 1),
    Sketcher.Constraint("Symmetric", 10, 2, 20, 2, -1, 1),
    Sketcher.Constraint("Symmetric", 24, 2, 26, 2, -1, 1),
    Sketcher.Constraint("Symmetric", 10, 2, 13, 2, -2),
    Sketcher.Constraint("Symmetric", 8, 2, 15, 2, -2),
    Sketcher.Constraint("Symmetric", 1, 2, 22, 2, -2),
    Sketcher.Constraint("Horizontal", 0, 2, 23, 2),
    Sketcher.Constraint("Vertical", 21, 2, 24, 2),
    Sketcher.Constraint("Equal", 20, 1),
    Sketcher.Constraint("DistanceX", 6, 1, 6, 2, 25.0),
    Sketcher.Constraint("DistanceY", 3, 2, 3, 1, 7.0),
    Sketcher.Constraint("DistanceY", 7, 1, 7, 2, 8.0),
    Sketcher.Constraint("DistanceX", 0, 2, 0, 1, 6.6),
    Sketcher.Constraint("DistanceX", 4, 1, 4, 2, 2.4),
    Sketcher.Constraint("DistanceX", 12, 2, 12, 1, 20.2),
    Sketcher.Constraint("DistanceY", 5, 1, 5, 2, 25.5),
])
pocket6 = body.newObject("PartDesign::Pocket", "Pocket005")
pocket6.Profile = sketch13
pocket6.Length = 2
doc.recompute()

chamfer = body.newObject("PartDesign::Chamfer", "Chamfer")
chamfer.Base = (pocket6, edges_at(pocket6, [(-12.5, 4, 0), (12.5, 4, 0)]))
chamfer.Size = 10

sketch14 = body.newObject("Sketcher::SketchObject", "Sketch013")
sketch14.AttachmentSupport = (doc.getObject("XY_Plane"), [""])
sketch14.MapMode = "FlatFace"
sketch14.AttachmentOffset = App.Placement(V(0, 0, 22.5), App.Rotation())
sketch14.addGeometry([
    Part.LineSegment(V(-10, 2, 0), V(10, 2, 0)),
    Part.LineSegment(V(10, 2, 0), V(10, 25, 0)),
    Part.LineSegment(V(10, 25, 0), V(-10, 25, 0)),
    Part.LineSegment(V(-10, 25, 0), V(-10, 2, 0)),
], False)
sketch14.addConstraint([
    Sketcher.Constraint("Coincident", 0, 2, 1, 1),
    Sketcher.Constraint("Coincident", 1, 2, 2, 1),
    Sketcher.Constraint("Coincident", 2, 2, 3, 1),
    Sketcher.Constraint("Coincident", 3, 2, 0, 1),
    Sketcher.Constraint("Horizontal", 0),
    Sketcher.Constraint("Vertical", 1),
    Sketcher.Constraint("Horizontal", 2),
    Sketcher.Constraint("Vertical", 3),
    Sketcher.Constraint("DistanceX", 0, 1, 0, 2, 20.2),
    Sketcher.Constraint("DistanceY", 1, 1, 1, 2, 22.9),
    Sketcher.Constraint("DistanceY", -1, 1, 0, 2, 2.0),
    Sketcher.Constraint("DistanceX", -1, 1, 0, 2, 10.1),
])
pocket7 = body.newObject("PartDesign::Pocket", "Pocket006")
pocket7.Profile = sketch14
pocket7.Length = 1.2

sketch15 = body.newObject("Sketcher::SketchObject", "Sketch014")
sketch15.AttachmentSupport = (doc.getObject("XY_Plane"), [""])
sketch15.MapMode = "FlatFace"
sketch15.AttachmentOffset = App.Placement(V(0, 0, -22.5), App.Rotation())
sketch15.addGeometry([
    Part.LineSegment(V(10, 25, 0), V(10, 2, 0)),
    Part.LineSegment(V(10, 2, 0), V(-10, 2, 0)),
    Part.LineSegment(V(-10, 2, 0), V(-10, 25, 0)),
    Part.LineSegment(V(-10, 25, 0), V(10, 25, 0)),
], False)
sketch15.addConstraint([
    Sketcher.Constraint("Coincident", 0, 2, 1, 1),
    Sketcher.Constraint("Coincident", 1, 2, 2, 1),
    Sketcher.Constraint("Coincident", 2, 2, 3, 1),
    Sketcher.Constraint("Coincident", 3, 2, 0, 1),
    Sketcher.Constraint("Vertical", 0),
    Sketcher.Constraint("Horizontal", 1),
    Sketcher.Constraint("Vertical", 2),
    Sketcher.Constraint("Horizontal", 3),
    Sketcher.Constraint("DistanceX", 1, 2, 1, 1, 20.2),
    Sketcher.Constraint("DistanceY", 0, 2, 0, 1, 22.9),
    Sketcher.Constraint("DistanceY", -1, 1, 0, 2, 2.0),
    Sketcher.Constraint("DistanceX", -1, 1, 0, 2, 10.1),
])
pocket8 = body.newObject("PartDesign::Pocket", "Pocket007")
pocket8.Profile = sketch15
pocket8.Length = 1.2
pocket8.Reversed = True

sketch16 = body.newObject("Sketcher::SketchObject", "Sketch015")
sketch16.AttachmentSupport = (doc.getObject("XY_Plane"), [""])
sketch16.MapMode = "FlatFace"
sketch16.AttachmentOffset = App.Placement(V(0, 0, -29.5), App.Rotation())
sketch16.addGeometry([
    Part.LineSegment(V(-10.1, 2, 0), V(-12.5, 2, 0)),
    Part.LineSegment(V(-12.5, 2, 0), V(-12.5, 26.9, 0)),
    Part.LineSegment(V(-12.5, 26.9, 0), V(12.5, 26.9, 0)),
    Part.LineSegment(V(12.5, 26.9, 0), V(12.5, 2, 0)),
    Part.LineSegment(V(12.5, 2, 0), V(10.1, 2, 0)),
    Part.LineSegment(V(10.1, 2, 0), V(10.1, 24.9, 0)),
    Part.LineSegment(V(10.1, 24.9, 0), V(-10.1, 24.9, 0)),
    Part.LineSegment(V(-10.1, 24.9, 0), V(-10.1, 2, 0)),
], False)
sketch16.addConstraint([
    Sketcher.Constraint("Coincident", 0, 2, 1, 1),
    Sketcher.Constraint("Coincident", 1, 2, 2, 1),
    Sketcher.Constraint("Coincident", 2, 2, 3, 1),
    Sketcher.Constraint("Coincident", 3, 2, 4, 1),
    Sketcher.Constraint("Coincident", 4, 2, 5, 1),
    Sketcher.Constraint("Coincident", 5, 2, 6, 1),
    Sketcher.Constraint("Coincident", 6, 2, 7, 1),
    Sketcher.Constraint("Coincident", 7, 2, 0, 1),
    Sketcher.Constraint("Horizontal", 0),
    Sketcher.Constraint("Vertical", 1),
    Sketcher.Constraint("Horizontal", 2),
    Sketcher.Constraint("Vertical", 3),
    Sketcher.Constraint("Horizontal", 4),
    Sketcher.Constraint("Vertical", 5),
    Sketcher.Constraint("Horizontal", 6),
    Sketcher.Constraint("Vertical", 7),
    Sketcher.Constraint("Symmetric", 0, 2, 3, 2, -2),
    Sketcher.Constraint("Equal", 0, 4),
    Sketcher.Constraint("DistanceX", 2, 1, 2, 2, 25.0),
    Sketcher.Constraint("DistanceX", 0, 2, 0, 1, 2.4),
    Sketcher.Constraint("DistanceY", 1, 1, 1, 2, 24.9),
    Sketcher.Constraint("DistanceY", 5, 1, 5, 2, 22.9),
    Sketcher.Constraint("DistanceY", -1, 1, 0, 2, 2.0),
])
pocket9 = body.newObject("PartDesign::Pocket", "Pocket008")
pocket9.Profile = sketch16
pocket9.Length = 2
pocket9.Reversed = True

sketch17 = body.newObject("Sketcher::SketchObject", "Sketch016")
sketch17.AttachmentSupport = (doc.getObject("XY_Plane"), [""])
sketch17.MapMode = "FlatFace"
sketch17.AttachmentOffset = App.Placement(V(0, 0, 29.5), App.Rotation())
sketch17.addGeometry([
    Part.LineSegment(V(10.1, 2, 0), V(12.5, 2, 0)),
    Part.LineSegment(V(12.5, 2, 0), V(12.5, 26.9, 0)),
    Part.LineSegment(V(12.5, 26.9, 0), V(-12.5, 26.9, 0)),
    Part.LineSegment(V(-12.5, 26.9, 0), V(-12.5, 2, 0)),
    Part.LineSegment(V(-12.5, 2, 0), V(-10.1, 2, 0)),
    Part.LineSegment(V(-10.1, 2, 0), V(-10.1, 24.9, 0)),
    Part.LineSegment(V(-10.1, 24.9, 0), V(10.1, 24.9, 0)),
    Part.LineSegment(V(10.1, 24.9, 0), V(10.1, 2, 0)),
], False)
sketch17.addConstraint([
    Sketcher.Constraint("Coincident", 0, 2, 1, 1),
    Sketcher.Constraint("Coincident", 1, 2, 2, 1),
    Sketcher.Constraint("Coincident", 2, 2, 3, 1),
    Sketcher.Constraint("Coincident", 3, 2, 4, 1),
    Sketcher.Constraint("Coincident", 4, 2, 5, 1),
    Sketcher.Constraint("Coincident", 5, 2, 6, 1),
    Sketcher.Constraint("Coincident", 6, 2, 7, 1),
    Sketcher.Constraint("Coincident", 7, 2, 0, 1),
    Sketcher.Constraint("Horizontal", 0),
    Sketcher.Constraint("Vertical", 1),
    Sketcher.Constraint("Horizontal", 2),
    Sketcher.Constraint("Vertical", 3),
    Sketcher.Constraint("Horizontal", 4),
    Sketcher.Constraint("Vertical", 5),
    Sketcher.Constraint("Horizontal", 6),
    Sketcher.Constraint("Vertical", 7),
    Sketcher.Constraint("Symmetric", 0, 2, 3, 2, -2),
    Sketcher.Constraint("Equal", 0, 4),
    Sketcher.Constraint("DistanceX", 2, 2, 2, 1, 25.0),
    Sketcher.Constraint("DistanceX", 0, 1, 0, 2, 2.4),
    Sketcher.Constraint("DistanceY", 1, 1, 1, 2, 24.9),
    Sketcher.Constraint("DistanceY", 5, 1, 5, 2, 22.9),
    Sketcher.Constraint("DistanceY", -1, 1, 0, 2, 2.0),
])
pocket10 = body.newObject("PartDesign::Pocket", "Pocket009")
pocket10.Profile = sketch17
pocket10.Length = 2

doc.recompute()
